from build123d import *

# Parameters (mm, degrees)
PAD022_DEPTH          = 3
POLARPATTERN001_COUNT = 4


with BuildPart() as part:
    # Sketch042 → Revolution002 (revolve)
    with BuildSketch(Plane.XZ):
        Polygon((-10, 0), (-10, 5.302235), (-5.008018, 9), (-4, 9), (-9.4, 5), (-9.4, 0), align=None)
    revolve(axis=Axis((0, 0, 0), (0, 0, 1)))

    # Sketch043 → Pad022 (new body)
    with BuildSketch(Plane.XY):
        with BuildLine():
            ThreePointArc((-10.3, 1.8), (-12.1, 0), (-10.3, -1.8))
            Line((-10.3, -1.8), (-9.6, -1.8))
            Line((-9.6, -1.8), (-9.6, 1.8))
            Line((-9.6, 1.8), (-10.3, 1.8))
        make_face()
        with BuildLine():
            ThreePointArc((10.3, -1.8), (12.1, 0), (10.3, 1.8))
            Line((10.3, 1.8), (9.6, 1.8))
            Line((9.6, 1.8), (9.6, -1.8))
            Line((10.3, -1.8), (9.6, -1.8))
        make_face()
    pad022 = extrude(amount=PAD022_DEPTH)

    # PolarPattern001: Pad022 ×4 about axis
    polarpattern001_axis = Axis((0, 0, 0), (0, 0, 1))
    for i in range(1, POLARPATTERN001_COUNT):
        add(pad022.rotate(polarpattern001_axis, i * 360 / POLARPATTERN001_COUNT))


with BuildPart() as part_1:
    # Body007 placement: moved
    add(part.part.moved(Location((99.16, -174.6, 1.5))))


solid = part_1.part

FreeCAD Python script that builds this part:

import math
import FreeCAD as App
import Part
import Sketcher

V = App.Vector


def add_polygon(sketch, points):
    """Adds a closed chain of lines whose ends are joined by coincident constraints."""
    first, n = sketch.GeometryCount, len(points)
    for a, b in zip(points, points[1:] + points[:1]):
        sketch.addGeometry(Part.LineSegment(App.Vector(*a, 0), App.Vector(*b, 0)), False)
    for i in range(n):
        sketch.addConstraint(Sketcher.Constraint("Coincident", first + i, 2, first + (i + 1) % n, 1))

doc = App.newDocument("Part")
body = doc.addObject("PartDesign::Body", "Body")

# Sketch on XZ plane
sketch1 = body.newObject("Sketcher::SketchObject", "Sketch")
sketch1.AttachmentSupport = (doc.getObject("XZ_Plane"), [""])
sketch1.MapMode = "FlatFace"
add_polygon(sketch1, [(-10, 5.3), (-10, 0), (-9.4, 0), (-9.4, 5), (-4, 9), (-5, 9)])  # lines 0-5
sketch1.addConstraint([
    Sketcher.Constraint("Vertical", 0),
    Sketcher.Constraint("Horizontal", 1),
    Sketcher.Constraint("Vertical", 2),
    Sketcher.Constraint("Horizontal", 4),
    Sketcher.Constraint("PointOnObject", 0, 2, -1),
    Sketcher.Constraint("Parallel", 3, 5),
    Sketcher.Constraint("DistanceY", 2, 1, 2, 2, 5.0),
    Sketcher.Constraint("DistanceX", 1, 1, 1, 2, 0.6),
    Sketcher.Constraint("DistanceX", 0, 2, -1, 1, 10.0),
    Sketcher.Constraint("DistanceX", 3, 2, -1, 1, 4.0),
    Sketcher.Constraint("DistanceY", -1, 1, 3, 2, 9.0),
    Sketcher.Constraint("DistanceX", 4, 2, 4, 1, 1.008018),
])
revolution = body.newObject("PartDesign::Revolution", "Revolution")
revolution.Profile = sketch1
revolution.ReferenceAxis = (sketch1, ["V_Axis"])
revolution.Angle = 360

# Sketch on XY plane
sketch2 = body.newObject("Sketcher::SketchObject", "Sketch001")
sketch2.AttachmentSupport = (doc.getObject("XY_Plane"), [""])
sketch2.MapMode = "FlatFace"
sketch2.addGeometry([
    Part.ArcOfCircle(Part.Circle(V(-10.3, 0, 0), V(0, 0, 1), 1.8), math.radians(90), math.radians(270)),  # 0
    Part.LineSegment(V(-10.3, -1.8, 0), V(-9.6, -1.8, 0)),  # 1
    Part.LineSegment(V(-9.6, -1.8, 0), V(-9.6, 1.8, 0)),  # 2
    Part.LineSegment(V(-9.6, 1.8, 0), V(-10.3, 1.8, 0)),  # 3
    Part.ArcOfCircle(Part.Circle(V(10.3, 0, 0), V(0, 0, 1), 1.8), math.radians(-90), math.radians(90)),  # 4
    Part.LineSegment(V(10.3, 1.8, 0), V(9.6, 1.8, 0)),  # 5
    Part.LineSegment(V(9.6, 1.8, 0), V(9.6, -1.8, 0)),  # 6
    Part.LineSegment(V(9.6, -1.8, 0), V(10.3, -1.8, 0)),  # 7
], False)
sketch2.addConstraint([
    Sketcher.Constraint("Tangent", 0, 2, 1, 1),
    Sketcher.Constraint("Coincident", 1, 2, 2, 1),
    Sketcher.Constraint("Coincident", 2, 2, 3, 1),
    Sketcher.Constraint("Tangent", 3, 2, 0, 1),
    Sketcher.Constraint("Tangent", 4, 2, 5, 1),
    Sketcher.Constraint("Coincident", 5, 2, 6, 1),
    Sketcher.Constraint("Coincident", 6, 2, 7, 1),
    Sketcher.Constraint("Tangent", 7, 2, 4, 1),
    Sketcher.Constraint("Horizontal", 1),
    Sketcher.Constraint("Vertical", 2),
    Sketcher.Constraint("Horizontal", 3),
    Sketcher.Constraint("Horizontal", 5),
    Sketcher.Constraint("Vertical", 6),
    Sketcher.Constraint("Horizontal", 7),
    Sketcher.Constraint("Equal", 0, 4),
    Sketcher.Constraint("Symmetric", 0, 3, 4, 3, -1, 1),
    Sketcher.Constraint("Symmetric", 2, 2, 5, 2, -2),
    Sketcher.Constraint("Radius", 0, 1.8),
    Sketcher.Constraint("DistanceX", 1, 1, 1, 2, 0.7),
    Sketcher.Constraint("DistanceX", 0, 3, -1, 1, 10.3),
])
pad1 = body.newObject("PartDesign::Pad", "Pad")
pad1.Profile = sketch2
pad1.Length = 3
doc.recompute()

polarpattern = body.newObject("PartDesign::PolarPattern", "PolarPattern")
polarpattern.Originals = [pad1]
polarpattern.Axis = (doc.getObject("Z_Axis"), [""])
polarpattern.Angle = 360
polarpattern.Occurrences = 4
body.Tip = polarpattern
body2 = doc.addObject("PartDesign::Body", "Body001")
doc.recompute()

body.Placement = App.Placement(V(99.16, -174.6, 1.5), App.Rotation(V(0, 0, 1), 0))
boolean = body2.newObject("PartDesign::Boolean", "Boolean")
boolean.Type = "Fuse"
boolean.addObjects([body])

doc.recompute()
